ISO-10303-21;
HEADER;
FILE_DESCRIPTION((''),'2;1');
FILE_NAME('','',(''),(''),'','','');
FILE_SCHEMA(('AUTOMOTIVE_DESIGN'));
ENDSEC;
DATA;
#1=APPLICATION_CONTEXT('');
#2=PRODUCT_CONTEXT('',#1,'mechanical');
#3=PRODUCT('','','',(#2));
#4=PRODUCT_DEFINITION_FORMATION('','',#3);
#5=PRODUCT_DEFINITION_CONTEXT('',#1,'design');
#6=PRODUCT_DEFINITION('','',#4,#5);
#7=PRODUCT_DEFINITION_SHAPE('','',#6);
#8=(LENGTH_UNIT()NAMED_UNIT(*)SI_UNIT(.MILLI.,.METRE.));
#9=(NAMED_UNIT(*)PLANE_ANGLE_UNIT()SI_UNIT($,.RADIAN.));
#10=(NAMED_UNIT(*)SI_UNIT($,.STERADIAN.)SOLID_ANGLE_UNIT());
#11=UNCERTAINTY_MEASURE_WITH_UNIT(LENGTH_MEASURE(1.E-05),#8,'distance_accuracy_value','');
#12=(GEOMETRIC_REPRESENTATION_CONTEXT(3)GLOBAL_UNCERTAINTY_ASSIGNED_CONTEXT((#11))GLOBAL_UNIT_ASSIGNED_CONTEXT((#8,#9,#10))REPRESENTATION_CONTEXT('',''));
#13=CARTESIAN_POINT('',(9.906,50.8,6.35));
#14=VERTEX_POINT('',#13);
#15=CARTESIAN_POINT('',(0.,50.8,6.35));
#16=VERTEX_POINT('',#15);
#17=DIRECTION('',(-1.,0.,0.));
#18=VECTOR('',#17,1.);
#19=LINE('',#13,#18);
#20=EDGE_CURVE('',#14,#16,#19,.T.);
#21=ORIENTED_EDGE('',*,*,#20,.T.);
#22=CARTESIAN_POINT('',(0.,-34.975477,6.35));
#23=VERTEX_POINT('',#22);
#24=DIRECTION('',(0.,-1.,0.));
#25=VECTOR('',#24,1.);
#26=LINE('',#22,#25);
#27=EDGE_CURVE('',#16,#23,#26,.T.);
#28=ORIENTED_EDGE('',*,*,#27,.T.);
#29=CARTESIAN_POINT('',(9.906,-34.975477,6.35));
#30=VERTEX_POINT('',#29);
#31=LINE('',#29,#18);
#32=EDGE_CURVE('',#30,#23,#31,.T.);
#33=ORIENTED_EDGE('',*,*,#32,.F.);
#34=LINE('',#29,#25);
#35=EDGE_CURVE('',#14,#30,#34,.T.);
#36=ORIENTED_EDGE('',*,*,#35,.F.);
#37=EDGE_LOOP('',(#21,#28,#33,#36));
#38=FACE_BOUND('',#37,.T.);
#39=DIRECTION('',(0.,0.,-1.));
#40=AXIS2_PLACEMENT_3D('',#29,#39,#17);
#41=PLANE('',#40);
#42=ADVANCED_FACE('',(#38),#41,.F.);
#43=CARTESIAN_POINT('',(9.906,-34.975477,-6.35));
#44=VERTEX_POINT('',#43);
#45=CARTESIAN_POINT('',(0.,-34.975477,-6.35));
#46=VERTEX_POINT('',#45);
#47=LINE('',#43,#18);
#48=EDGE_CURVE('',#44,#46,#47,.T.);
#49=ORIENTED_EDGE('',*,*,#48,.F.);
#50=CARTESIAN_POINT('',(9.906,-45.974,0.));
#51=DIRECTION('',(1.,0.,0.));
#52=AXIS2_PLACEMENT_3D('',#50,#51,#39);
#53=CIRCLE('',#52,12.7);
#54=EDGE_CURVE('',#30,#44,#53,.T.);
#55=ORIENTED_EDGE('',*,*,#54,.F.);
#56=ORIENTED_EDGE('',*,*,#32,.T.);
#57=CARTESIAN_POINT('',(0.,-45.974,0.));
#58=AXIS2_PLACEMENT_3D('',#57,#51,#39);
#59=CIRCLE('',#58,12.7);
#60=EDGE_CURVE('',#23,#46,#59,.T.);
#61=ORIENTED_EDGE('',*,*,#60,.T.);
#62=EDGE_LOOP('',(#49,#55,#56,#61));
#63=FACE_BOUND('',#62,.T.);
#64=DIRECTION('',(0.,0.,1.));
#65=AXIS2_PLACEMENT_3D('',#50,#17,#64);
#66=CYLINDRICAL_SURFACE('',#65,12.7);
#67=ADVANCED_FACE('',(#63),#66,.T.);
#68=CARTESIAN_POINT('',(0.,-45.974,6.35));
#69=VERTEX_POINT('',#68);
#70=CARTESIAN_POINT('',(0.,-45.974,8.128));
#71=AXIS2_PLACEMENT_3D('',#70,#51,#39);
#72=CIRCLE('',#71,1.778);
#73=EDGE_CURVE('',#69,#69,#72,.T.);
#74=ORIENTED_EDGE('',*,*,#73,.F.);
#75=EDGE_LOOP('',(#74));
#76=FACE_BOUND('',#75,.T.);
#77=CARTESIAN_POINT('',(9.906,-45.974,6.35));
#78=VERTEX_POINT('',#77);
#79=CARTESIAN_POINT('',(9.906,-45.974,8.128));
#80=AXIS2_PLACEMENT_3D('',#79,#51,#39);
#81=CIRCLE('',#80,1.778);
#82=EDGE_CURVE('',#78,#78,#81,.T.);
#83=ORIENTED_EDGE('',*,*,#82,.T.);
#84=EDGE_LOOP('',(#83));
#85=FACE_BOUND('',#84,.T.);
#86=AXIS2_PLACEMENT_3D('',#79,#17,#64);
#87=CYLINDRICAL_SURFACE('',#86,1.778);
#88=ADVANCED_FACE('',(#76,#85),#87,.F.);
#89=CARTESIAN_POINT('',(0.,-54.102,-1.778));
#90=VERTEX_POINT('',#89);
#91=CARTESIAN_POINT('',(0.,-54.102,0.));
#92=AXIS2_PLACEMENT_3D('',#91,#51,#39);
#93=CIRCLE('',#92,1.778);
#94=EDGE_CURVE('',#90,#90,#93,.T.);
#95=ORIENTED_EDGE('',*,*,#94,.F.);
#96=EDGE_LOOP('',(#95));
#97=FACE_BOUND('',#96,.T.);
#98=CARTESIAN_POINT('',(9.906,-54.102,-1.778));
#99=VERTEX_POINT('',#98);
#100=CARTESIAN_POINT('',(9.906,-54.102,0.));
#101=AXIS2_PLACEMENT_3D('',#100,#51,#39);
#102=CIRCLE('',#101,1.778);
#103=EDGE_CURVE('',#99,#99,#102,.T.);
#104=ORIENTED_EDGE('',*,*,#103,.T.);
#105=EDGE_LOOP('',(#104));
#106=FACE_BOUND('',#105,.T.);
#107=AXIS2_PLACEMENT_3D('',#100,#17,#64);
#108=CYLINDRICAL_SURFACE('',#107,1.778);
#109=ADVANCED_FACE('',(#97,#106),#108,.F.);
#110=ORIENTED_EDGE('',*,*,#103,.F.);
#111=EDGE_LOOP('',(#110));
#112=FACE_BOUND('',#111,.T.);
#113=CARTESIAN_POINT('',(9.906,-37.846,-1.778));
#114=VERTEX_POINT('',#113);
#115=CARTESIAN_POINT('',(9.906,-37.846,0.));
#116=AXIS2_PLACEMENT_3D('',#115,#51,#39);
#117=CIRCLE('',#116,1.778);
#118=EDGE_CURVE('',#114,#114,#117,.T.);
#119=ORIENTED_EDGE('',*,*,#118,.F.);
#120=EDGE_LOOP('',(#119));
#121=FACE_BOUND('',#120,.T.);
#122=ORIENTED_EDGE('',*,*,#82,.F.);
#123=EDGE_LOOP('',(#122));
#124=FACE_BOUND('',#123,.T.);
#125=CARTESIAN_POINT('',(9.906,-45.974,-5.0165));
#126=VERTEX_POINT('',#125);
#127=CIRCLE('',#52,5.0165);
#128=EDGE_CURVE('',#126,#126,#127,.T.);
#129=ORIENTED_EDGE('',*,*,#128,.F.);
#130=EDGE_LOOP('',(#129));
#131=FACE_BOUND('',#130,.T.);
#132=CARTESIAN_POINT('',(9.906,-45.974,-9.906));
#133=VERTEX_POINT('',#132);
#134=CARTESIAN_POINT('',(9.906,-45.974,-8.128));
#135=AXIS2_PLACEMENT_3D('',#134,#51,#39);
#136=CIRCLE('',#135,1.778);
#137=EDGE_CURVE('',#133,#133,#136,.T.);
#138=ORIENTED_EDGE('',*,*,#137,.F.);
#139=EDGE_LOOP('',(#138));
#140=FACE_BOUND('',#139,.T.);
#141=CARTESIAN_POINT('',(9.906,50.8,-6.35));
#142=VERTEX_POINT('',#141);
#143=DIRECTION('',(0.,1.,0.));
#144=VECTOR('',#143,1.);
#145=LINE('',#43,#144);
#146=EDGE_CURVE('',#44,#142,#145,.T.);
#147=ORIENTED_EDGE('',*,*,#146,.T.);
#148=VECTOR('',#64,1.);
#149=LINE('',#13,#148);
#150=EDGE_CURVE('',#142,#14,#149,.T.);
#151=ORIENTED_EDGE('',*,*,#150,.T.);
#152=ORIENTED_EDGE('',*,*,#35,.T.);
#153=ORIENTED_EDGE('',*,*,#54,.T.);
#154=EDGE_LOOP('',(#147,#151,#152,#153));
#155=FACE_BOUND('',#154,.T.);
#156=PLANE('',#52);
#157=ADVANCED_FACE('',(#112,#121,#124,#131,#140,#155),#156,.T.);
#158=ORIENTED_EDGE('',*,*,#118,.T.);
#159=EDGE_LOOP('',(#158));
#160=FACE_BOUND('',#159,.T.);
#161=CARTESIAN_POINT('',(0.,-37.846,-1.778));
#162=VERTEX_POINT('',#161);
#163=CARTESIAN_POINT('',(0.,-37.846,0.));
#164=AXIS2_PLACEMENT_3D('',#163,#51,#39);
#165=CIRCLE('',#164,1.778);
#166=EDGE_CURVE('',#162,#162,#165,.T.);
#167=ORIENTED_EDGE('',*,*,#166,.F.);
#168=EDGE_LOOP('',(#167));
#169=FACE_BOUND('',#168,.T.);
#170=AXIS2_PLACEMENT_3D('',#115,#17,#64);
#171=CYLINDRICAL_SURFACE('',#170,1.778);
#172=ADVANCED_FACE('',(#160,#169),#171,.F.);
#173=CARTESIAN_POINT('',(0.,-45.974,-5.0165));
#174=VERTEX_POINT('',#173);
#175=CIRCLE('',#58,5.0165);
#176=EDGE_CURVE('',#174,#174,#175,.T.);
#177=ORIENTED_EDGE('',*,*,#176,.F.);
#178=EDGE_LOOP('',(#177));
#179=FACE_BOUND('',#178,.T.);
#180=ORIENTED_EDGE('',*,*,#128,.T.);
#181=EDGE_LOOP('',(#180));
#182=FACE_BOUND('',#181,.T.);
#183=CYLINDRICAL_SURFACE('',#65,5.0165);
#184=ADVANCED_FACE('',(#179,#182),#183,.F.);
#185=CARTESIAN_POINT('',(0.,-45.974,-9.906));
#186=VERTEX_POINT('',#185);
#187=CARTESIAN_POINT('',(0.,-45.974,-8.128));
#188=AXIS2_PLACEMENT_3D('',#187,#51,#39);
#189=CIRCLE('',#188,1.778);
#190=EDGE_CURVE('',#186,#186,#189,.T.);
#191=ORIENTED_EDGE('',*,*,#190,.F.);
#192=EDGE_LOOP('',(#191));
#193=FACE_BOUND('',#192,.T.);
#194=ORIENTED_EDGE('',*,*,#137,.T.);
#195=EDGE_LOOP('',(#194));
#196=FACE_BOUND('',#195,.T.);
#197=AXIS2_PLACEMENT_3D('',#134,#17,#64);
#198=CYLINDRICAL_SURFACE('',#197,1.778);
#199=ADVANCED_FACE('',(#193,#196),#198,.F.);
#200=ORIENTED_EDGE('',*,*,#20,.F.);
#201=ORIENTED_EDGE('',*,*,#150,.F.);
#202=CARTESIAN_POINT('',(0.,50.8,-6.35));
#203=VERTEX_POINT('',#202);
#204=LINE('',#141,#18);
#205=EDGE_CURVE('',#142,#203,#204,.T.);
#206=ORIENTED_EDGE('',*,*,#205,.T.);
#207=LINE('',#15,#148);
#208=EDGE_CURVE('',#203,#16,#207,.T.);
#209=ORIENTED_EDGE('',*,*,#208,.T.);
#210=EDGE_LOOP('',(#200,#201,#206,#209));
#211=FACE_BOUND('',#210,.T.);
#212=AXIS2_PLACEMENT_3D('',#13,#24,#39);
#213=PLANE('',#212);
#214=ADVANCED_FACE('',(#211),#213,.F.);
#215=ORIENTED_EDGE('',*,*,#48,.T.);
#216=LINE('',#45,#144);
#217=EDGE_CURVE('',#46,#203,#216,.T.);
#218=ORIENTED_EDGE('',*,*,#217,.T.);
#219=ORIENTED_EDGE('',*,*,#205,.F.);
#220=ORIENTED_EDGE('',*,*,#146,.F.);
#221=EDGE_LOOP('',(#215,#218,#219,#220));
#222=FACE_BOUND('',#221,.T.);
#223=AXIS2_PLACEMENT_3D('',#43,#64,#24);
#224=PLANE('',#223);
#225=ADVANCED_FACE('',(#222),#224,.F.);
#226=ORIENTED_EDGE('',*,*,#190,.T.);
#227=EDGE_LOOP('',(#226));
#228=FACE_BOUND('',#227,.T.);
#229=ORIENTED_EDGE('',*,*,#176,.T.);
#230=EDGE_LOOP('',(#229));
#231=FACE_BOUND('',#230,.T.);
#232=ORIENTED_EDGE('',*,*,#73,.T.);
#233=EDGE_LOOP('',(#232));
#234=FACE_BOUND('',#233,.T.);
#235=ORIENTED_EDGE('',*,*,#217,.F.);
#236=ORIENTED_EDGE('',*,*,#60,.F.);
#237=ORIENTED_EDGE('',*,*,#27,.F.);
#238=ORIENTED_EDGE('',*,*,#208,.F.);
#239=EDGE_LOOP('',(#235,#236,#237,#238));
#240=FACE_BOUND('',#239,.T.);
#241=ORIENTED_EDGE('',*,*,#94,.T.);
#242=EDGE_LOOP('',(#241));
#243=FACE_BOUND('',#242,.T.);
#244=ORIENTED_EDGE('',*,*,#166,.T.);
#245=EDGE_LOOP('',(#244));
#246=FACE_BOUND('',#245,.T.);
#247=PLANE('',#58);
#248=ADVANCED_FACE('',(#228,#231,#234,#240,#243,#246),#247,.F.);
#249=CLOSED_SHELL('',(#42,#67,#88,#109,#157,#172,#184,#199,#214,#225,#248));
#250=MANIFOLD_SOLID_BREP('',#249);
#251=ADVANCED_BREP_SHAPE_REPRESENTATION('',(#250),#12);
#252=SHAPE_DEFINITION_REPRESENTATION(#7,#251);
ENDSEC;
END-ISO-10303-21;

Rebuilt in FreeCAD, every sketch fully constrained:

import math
import FreeCAD as App
import Part
import Sketcher
from FreeCAD import Vector
Q = App.Units.Quantity

doc = App.newDocument("Part")
body = doc.addObject("PartDesign::Body", "Body")

# Sketch on YZ plane
sketch1 = body.newObject("Sketcher::SketchObject", "Sketch")
sketch1.AttachmentSupport = (doc.getObject("YZ_Plane"), [""])
sketch1.MapMode = "FlatFace"
sketch1.addGeometry(Part.LineSegment(Vector(50.8, 6.3, 0), Vector(-35, 6.3, 0)), False)
sketch1.addGeometry(Part.ArcOfCircle(Part.Circle(Vector(-46, 0, 0), Vector(0, 0, 1), 12.7), math.radians(30), math.radians(330)), False)
sketch1.addGeometry(Part.LineSegment(Vector(-35, -6.3, 0), Vector(50.8, -6.3, 0)), False)
sketch1.addGeometry(Part.LineSegment(Vector(50.8, -6.3, 0), Vector(50.8, 6.3, 0)), False)
sketch1.addGeometry(Part.Circle(Vector(-54.1, 0, 0), Vector(0, 0, 1), 1.8), False)
sketch1.addGeometry(Part.Circle(Vector(-46, -8.1, 0), Vector(0, 0, 1), 1.8), False)
sketch1.addGeometry(Part.Circle(Vector(-46, 0, 0), Vector(0, 0, 1), 5), False)
sketch1.addGeometry(Part.Circle(Vector(-46, 8.1, 0), Vector(0, 0, 1), 1.8), False)
sketch1.addGeometry(Part.Circle(Vector(-37.8, 0, 0), Vector(0, 0, 1), 1.8), False)
sketch1.addConstraint(Sketcher.Constraint("Coincident", 0, 2, 1, 1))
sketch1.addConstraint(Sketcher.Constraint("Coincident", 1, 2, 2, 1))
sketch1.addConstraint(Sketcher.Constraint("Coincident", 2, 2, 3, 1))
sketch1.addConstraint(Sketcher.Constraint("Coincident", 3, 2, 0, 1))
sketch1.addConstraint(Sketcher.Constraint("Horizontal", 0))
sketch1.addConstraint(Sketcher.Constraint("Horizontal", 2))
sketch1.addConstraint(Sketcher.Constraint("Vertical", 3))
sketch1.addConstraint(Sketcher.Constraint("Coincident", 6, 3, 1, 3))
sketch1.addConstraint(Sketcher.Constraint("Equal", 4, 5))
sketch1.addConstraint(Sketcher.Constraint("Equal", 5, 7))
sketch1.addConstraint(Sketcher.Constraint("Equal", 7, 8))
sketch1.addConstraint(Sketcher.Constraint("Symmetric", 5, 3, 7, 3, -1))
sketch1.addConstraint(Sketcher.Constraint("Symmetric", 0, 2, 1, 2, -1))
sketch1.addConstraint(Sketcher.Constraint("PointOnObject", 4, 3, -1))
sketch1.addConstraint(Sketcher.Constraint("PointOnObject", 8, 3, -1))
sketch1.addConstraint(Sketcher.Constraint("Vertical", 1, 3, 5, 3))
sketch1.addConstraint(Sketcher.Constraint("Radius", 1, Q("0.5 in")))
sketch1.addConstraint(Sketcher.Constraint("Diameter", 4, Q("0.14 in")))
sketch1.addConstraint(Sketcher.Constraint("Diameter", 6, Q("0.395 in")))
sketch1.addConstraint(Sketcher.Constraint("DistanceY", 3, 1, 3, 2, Q("0.5 in")))
sketch1.addConstraint(Sketcher.Constraint("DistanceX", -1, 1, 2, 2, Q("2 in")))
sketch1.addConstraint(Sketcher.Constraint("DistanceX", 1, 3, -1, 1, Q("1.81 in")))
sketch1.addConstraint(Sketcher.Constraint("DistanceX", 4, 3, -1, 1, Q("2.13 in")))
sketch1.addConstraint(Sketcher.Constraint("DistanceY", 5, 3, -1, 1, Q("0.32 in")))
sketch1.addConstraint(Sketcher.Constraint("DistanceX", 8, 3, -1, 1, Q("1.49 in")))
pad1 = body.newObject("PartDesign::Pad", "Pad")
pad1.Profile = sketch1
pad1.Length = Q("0.39 in")

doc.recompute()
